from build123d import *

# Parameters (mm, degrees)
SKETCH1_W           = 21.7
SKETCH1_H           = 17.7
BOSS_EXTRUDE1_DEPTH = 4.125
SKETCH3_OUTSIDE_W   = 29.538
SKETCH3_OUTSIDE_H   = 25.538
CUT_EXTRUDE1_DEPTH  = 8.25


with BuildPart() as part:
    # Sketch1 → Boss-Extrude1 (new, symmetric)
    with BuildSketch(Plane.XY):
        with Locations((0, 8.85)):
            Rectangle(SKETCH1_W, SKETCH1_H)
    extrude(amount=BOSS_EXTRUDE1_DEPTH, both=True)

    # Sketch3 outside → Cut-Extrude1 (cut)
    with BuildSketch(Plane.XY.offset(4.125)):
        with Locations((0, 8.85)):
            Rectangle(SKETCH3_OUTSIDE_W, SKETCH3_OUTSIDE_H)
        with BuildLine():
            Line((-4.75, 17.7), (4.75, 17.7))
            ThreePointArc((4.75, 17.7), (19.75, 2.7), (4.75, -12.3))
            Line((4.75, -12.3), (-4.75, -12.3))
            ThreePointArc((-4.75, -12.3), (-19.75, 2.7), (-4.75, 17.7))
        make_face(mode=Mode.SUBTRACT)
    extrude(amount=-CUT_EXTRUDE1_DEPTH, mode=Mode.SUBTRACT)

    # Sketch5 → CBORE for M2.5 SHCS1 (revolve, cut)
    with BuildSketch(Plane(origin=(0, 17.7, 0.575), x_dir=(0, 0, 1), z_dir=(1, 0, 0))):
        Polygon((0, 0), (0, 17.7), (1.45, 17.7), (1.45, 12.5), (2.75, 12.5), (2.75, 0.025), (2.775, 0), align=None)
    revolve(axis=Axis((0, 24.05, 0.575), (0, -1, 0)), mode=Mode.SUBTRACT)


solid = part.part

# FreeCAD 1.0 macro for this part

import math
import FreeCAD as App
import Part
import Sketcher
Q = App.Units.Quantity


def add_polygon(sketch, points):
    """Adds a closed chain of lines whose ends are joined by coincident constraints."""
    first, n = sketch.GeometryCount, len(points)
    for a, b in zip(points, points[1:] + points[:1]):
        sketch.addGeometry(Part.LineSegment(App.Vector(*a, 0), App.Vector(*b, 0)), False)
    for i in range(n):
        sketch.addConstraint(Sketcher.Constraint("Coincident", first + i, 2, first + (i + 1) % n, 1))

doc = App.newDocument("Part")
body = doc.addObject("PartDesign::Body", "Body")

sketch1 = body.newObject("Sketcher::SketchObject", "Sketch")
sketch1.AttachmentSupport = (doc.getObject("XY_Plane"), [""])
sketch1.MapMode = "FlatFace"
add_polygon(sketch1, [(-11, 18), (-11, 0), (11, 0), (11, 18)])
sketch1.addConstraint(Sketcher.Constraint("Vertical", 0))
sketch1.addConstraint(Sketcher.Constraint("Horizontal", 1))
sketch1.addConstraint(Sketcher.Constraint("Vertical", 2))
sketch1.addConstraint(Sketcher.Constraint("Horizontal", 3))
sketch1.addConstraint(Sketcher.Constraint("Symmetric", 0, 2, 1, 2, -1, 1))
sketch1.addConstraint(Sketcher.Constraint("DistanceX", 1, 1, 1, 2, 21.7))
sketch1.addConstraint(Sketcher.Constraint("DistanceY", 0, 2, 0, 1, 17.7))
pad1 = body.newObject("PartDesign::Pad", "Pad")
pad1.Profile = sketch1
pad1.Length = 8.25
pad1.Midplane = True

sketch2 = body.newObject("Sketcher::SketchObject", "Sketch001")
sketch2.AttachmentSupport = (doc.getObject("XY_Plane"), [""])
sketch2.MapMode = "FlatFace"
sketch2.AttachmentOffset = App.Placement(App.Vector(0, 0, 4.125), App.Rotation())
sketch2.addGeometry(Part.LineSegment(App.Vector(-15, 22, 0), App.Vector(-15, 14, 0)), False)
sketch2.addGeometry(Part.ArcOfCircle(Part.Circle(App.Vector(-5, 3, 0), App.Vector(0, 0, 1), 15), math.radians(90), math.radians(132)), False)
sketch2.addGeometry(Part.LineSegment(App.Vector(-5, 18, 0), App.Vector(5, 18, 0)), False)
sketch2.addGeometry(Part.ArcOfCircle(Part.Circle(App.Vector(5, 3, 0), App.Vector(0, 0, 1), 15), math.radians(48), math.radians(90)), False)
sketch2.addGeometry(Part.LineSegment(App.Vector(15, 14, 0), App.Vector(15, 22, 0)), False)
sketch2.addGeometry(Part.LineSegment(App.Vector(15, 22, 0), App.Vector(-15, 22, 0)), False)
sketch2.addConstraint(Sketcher.Constraint("Coincident", 0, 2, 1, 2))
sketch2.addConstraint(Sketcher.Constraint("Tangent", 1, 1, 2, 1))
sketch2.addConstraint(Sketcher.Constraint("Tangent", 2, 2, 3, 2))
sketch2.addConstraint(Sketcher.Constraint("Coincident", 3, 1, 4, 1))
sketch2.addConstraint(Sketcher.Constraint("Coincident", 4, 2, 5, 1))
sketch2.addConstraint(Sketcher.Constraint("Coincident", 5, 2, 0, 1))
sketch2.addConstraint(Sketcher.Constraint("Vertical", 0))
sketch2.addConstraint(Sketcher.Constraint("Horizontal", 2))
sketch2.addConstraint(Sketcher.Constraint("Vertical", 4))
sketch2.addConstraint(Sketcher.Constraint("Horizontal", 5))
sketch2.addConstraint(Sketcher.Constraint("Equal", 1, 3))
sketch2.addConstraint(Sketcher.Constraint("Symmetric", 0, 2, 3, 1, -2))
sketch2.addConstraint(Sketcher.Constraint("Radius", 1, 15.0))
sketch2.addConstraint(Sketcher.Constraint("DistanceX", 2, 1, 2, 2, 9.5))
sketch2.addConstraint(Sketcher.Constraint("DistanceY", -1, 1, 1, 3, 2.7))
sketch2.addConstraint(Sketcher.Constraint("DistanceX", 5, 2, 5, 1, 29.538))
sketch2.addConstraint(Sketcher.Constraint("DistanceY", -1, 1, 4, 2, 21.619))
pocket1 = body.newObject("PartDesign::Pocket", "Pocket")
pocket1.Profile = sketch2
pocket1.Length = 8.25

sketch3 = body.newObject("Sketcher::SketchObject", "Sketch002")
sketch3.AttachmentSupport = (doc.getObject("YZ_Plane"), [""])
sketch3.MapMode = "FlatFace"
add_polygon(sketch3, [(0, 0.575), (17.7, 0.575), (17.7, 3.35), (17.675, 3.325), (5.2, 3.325), (5.2, 2.025), (0, 2.025)])
sketch3.addGeometry(Part.LineSegment(App.Vector(17.7, 0.575, 0), App.Vector(0, 0.575, 0)), True)
sketch3.addConstraint(Sketcher.Constraint("Horizontal", 0))
sketch3.addConstraint(Sketcher.Constraint("Vertical", 1))
sketch3.addConstraint(Sketcher.Constraint("Horizontal", 3))
sketch3.addConstraint(Sketcher.Constraint("Vertical", 4))
sketch3.addConstraint(Sketcher.Constraint("Horizontal", 5))
sketch3.addConstraint(Sketcher.Constraint("Vertical", 6))
sketch3.addConstraint(Sketcher.Constraint("Horizontal", 7))
sketch3.addConstraint(Sketcher.Constraint("Coincident", 7, 1, 0, 2))
sketch3.addConstraint(Sketcher.Constraint("PointOnObject", 5, 2, -2))
sketch3.addConstraint(Sketcher.Constraint("PointOnObject", 7, 2, -2))
sketch3.addConstraint(Sketcher.Constraint("Angle", 2, Q("-135 deg")))
sketch3.addConstraint(Sketcher.Constraint("DistanceX", 0, 1, 0, 2, 17.7))
sketch3.addConstraint(Sketcher.Constraint("DistanceX", 5, 2, 5, 1, 5.2))
sketch3.addConstraint(Sketcher.Constraint("DistanceY", 4, 2, 4, 1, 1.3))
sketch3.addConstraint(Sketcher.Constraint("DistanceY", 6, 2, 6, 1, 1.45))
sketch3.addConstraint(Sketcher.Constraint("DistanceX", 3, 2, 3, 1, 12.475))
sketch3.addConstraint(Sketcher.Constraint("DistanceY", -1, 1, 1, 2, 3.35))
groove = body.newObject("PartDesign::Groove", "Groove")
groove.Profile = sketch3
groove.ReferenceAxis = (sketch3, ["Axis0"])
groove.Angle = 360

doc.recompute()
